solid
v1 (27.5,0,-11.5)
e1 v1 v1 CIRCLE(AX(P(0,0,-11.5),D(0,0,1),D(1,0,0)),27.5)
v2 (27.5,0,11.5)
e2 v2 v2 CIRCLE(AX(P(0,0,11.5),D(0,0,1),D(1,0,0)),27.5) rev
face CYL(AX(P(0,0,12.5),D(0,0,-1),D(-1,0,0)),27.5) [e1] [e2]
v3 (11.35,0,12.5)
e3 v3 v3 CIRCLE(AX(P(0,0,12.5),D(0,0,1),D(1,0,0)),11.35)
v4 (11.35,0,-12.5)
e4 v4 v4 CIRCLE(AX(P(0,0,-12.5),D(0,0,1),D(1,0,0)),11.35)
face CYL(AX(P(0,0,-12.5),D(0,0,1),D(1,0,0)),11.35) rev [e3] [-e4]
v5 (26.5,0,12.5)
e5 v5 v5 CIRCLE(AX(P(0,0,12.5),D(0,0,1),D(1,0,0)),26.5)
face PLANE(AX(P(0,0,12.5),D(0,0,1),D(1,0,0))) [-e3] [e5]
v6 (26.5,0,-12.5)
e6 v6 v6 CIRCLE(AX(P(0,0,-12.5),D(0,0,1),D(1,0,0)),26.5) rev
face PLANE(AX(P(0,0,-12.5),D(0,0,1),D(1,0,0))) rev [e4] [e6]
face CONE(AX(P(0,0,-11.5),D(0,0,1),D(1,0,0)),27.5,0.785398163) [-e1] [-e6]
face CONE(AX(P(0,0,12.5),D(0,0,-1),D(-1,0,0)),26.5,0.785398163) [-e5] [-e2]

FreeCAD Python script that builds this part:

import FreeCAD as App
import Part
import Sketcher

V = App.Vector


def edges_at(feature, points):
    """Names of the edges that pass closest to the given points."""
    edges = feature.Shape.Edges
    near = lambda p: min(range(len(edges)), key=lambda i: edges[i].distToShape(Part.Vertex(*p))[0])
    return sorted({f"Edge{near(p) + 1}" for p in points})

doc = App.newDocument("Part")
body = doc.addObject("PartDesign::Body", "Body")

# Sketch on XY plane
sketch1 = body.newObject("Sketcher::SketchObject", "Sketch")
sketch1.AttachmentSupport = (doc.getObject("XY_Plane"), [""])
sketch1.MapMode = "FlatFace"
sketch1.addGeometry(Part.Circle(V(0, 0, 0), V(0, 0, 1), 28), False)
sketch1.addConstraint(Sketcher.Constraint("Coincident", 0, 3, -1, 1))
sketch1.addConstraint(Sketcher.Constraint("Diameter", 0, 55.0))
pad1 = body.newObject("PartDesign::Pad", "Pad")
pad1.Profile = sketch1
pad1.Length = 25
pad1.Midplane = True

# Sketch on XY plane
sketch2 = body.newObject("Sketcher::SketchObject", "Sketch001")
sketch2.AttachmentSupport = (doc.getObject("XY_Plane"), [""])
sketch2.MapMode = "FlatFace"
sketch2.addGeometry(Part.Circle(V(0, 0, 0), V(0, 0, 1), 11), False)
sketch2.addConstraint(Sketcher.Constraint("Coincident", 0, 3, -1, 1))
sketch2.addConstraint(Sketcher.Constraint("Diameter", 0, 22.7))
pocket1 = body.newObject("PartDesign::Pocket", "Pocket")
pocket1.Profile = sketch2
pocket1.Type = "ThroughAll"
pocket1.Midplane = True
doc.recompute()

chamfer = body.newObject("PartDesign::Chamfer", "Chamfer")
chamfer.Base = (pocket1, edges_at(pocket1, [(-27.5, 0, -12.5), (-27.5, 0, 12.5)]))
chamfer.Size = 1

doc.recompute()
